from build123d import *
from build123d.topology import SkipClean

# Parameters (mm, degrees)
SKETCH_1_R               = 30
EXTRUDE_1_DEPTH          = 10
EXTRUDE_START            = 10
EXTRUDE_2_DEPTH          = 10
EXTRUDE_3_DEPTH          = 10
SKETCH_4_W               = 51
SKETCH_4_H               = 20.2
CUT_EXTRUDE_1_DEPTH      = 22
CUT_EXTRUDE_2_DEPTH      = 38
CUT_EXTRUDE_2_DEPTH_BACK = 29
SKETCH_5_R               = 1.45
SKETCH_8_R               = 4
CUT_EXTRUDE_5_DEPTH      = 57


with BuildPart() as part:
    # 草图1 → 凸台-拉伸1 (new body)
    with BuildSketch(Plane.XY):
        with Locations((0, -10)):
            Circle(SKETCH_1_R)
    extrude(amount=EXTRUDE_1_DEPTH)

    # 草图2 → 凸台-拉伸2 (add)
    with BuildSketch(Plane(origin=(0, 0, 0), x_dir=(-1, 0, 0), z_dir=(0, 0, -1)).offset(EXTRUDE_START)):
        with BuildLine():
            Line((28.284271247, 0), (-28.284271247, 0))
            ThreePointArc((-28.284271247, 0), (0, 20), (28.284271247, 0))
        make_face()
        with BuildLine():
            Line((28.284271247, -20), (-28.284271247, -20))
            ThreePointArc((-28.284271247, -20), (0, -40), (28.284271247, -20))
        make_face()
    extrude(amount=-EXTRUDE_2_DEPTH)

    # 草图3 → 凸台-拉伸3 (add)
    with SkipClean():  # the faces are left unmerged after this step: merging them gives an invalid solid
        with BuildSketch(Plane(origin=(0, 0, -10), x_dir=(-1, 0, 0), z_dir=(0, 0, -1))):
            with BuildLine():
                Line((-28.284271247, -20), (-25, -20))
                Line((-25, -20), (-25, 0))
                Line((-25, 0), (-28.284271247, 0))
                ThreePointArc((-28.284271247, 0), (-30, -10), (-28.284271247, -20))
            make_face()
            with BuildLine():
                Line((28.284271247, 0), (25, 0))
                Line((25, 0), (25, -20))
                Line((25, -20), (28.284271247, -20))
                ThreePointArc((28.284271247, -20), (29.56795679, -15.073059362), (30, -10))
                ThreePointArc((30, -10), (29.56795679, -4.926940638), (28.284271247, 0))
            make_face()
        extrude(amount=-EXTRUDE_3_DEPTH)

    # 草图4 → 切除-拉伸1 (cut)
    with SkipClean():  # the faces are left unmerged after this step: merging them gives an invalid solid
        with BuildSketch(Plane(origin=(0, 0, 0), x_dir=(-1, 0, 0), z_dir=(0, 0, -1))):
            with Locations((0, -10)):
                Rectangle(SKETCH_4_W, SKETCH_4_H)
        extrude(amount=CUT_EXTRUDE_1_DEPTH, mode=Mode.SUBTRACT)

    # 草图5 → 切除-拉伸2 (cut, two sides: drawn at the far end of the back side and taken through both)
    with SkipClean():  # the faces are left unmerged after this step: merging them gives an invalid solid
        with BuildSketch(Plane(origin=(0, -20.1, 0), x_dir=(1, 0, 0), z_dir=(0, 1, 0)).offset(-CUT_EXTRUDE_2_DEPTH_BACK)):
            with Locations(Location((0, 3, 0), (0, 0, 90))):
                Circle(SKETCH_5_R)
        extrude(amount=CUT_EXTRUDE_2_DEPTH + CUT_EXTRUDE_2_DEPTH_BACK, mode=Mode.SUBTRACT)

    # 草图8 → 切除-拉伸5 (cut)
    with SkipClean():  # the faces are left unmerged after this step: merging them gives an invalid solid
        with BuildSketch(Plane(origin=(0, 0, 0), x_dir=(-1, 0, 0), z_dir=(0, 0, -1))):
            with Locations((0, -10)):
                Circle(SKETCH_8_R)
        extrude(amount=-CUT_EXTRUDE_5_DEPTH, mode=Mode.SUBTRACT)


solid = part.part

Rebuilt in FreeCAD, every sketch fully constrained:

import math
import FreeCAD as App
import Part
import Sketcher

V = App.Vector
Q = App.Units.Quantity

doc = App.newDocument("Part")
body = doc.addObject("PartDesign::Body", "Body")

# Sketch on XY plane
sketch1 = body.newObject("Sketcher::SketchObject", "Sketch")
sketch1.AttachmentSupport = (doc.getObject("XY_Plane"), [""])
sketch1.MapMode = "FlatFace"
sketch1.addGeometry(Part.Circle(V(0, -10, 0), V(0, 0, 1), 30), False)
sketch1.addConstraint(Sketcher.Constraint("PointOnObject", 0, 3, -2))
sketch1.addConstraint(Sketcher.Constraint("Diameter", 0, Q("60 mm")))
sketch1.addConstraint(Sketcher.Constraint("DistanceY", 0, 3, -1, 1, Q("10 mm")))
pad1 = body.newObject("PartDesign::Pad", "Pad")
pad1.Profile = sketch1
pad1.Length = 10

# Sketch on XY plane
sketch2 = body.newObject("Sketcher::SketchObject", "Sketch001")
sketch2.AttachmentSupport = (doc.getObject("XY_Plane"), [""])
sketch2.MapMode = "FlatFace"
sketch2.AttachmentOffset = App.Placement(V(0, 0, -10), App.Rotation())
sketch2.addGeometry(Part.LineSegment(V(28, 0, 0), V(-28, 0, 0)), False)
sketch2.addGeometry(Part.ArcOfCircle(Part.Circle(V(0, -10, 0), V(0, 0, 1), 30), math.radians(19), math.radians(161)), False)
sketch2.addGeometry(Part.LineSegment(V(-28, -20, 0), V(28, -20, 0)), False)
sketch2.addGeometry(Part.ArcOfCircle(Part.Circle(V(0, -10, 0), V(0, 0, 1), 30), math.radians(-161), math.radians(-19)), False)
sketch2.addConstraint(Sketcher.Constraint("Coincident", 0, 1, 1, 1))
sketch2.addConstraint(Sketcher.Constraint("Coincident", 1, 2, 0, 2))
sketch2.addConstraint(Sketcher.Constraint("Coincident", 2, 1, 3, 1))
sketch2.addConstraint(Sketcher.Constraint("Coincident", 3, 2, 2, 2))
sketch2.addConstraint(Sketcher.Constraint("Horizontal", 0))
sketch2.addConstraint(Sketcher.Constraint("Horizontal", 2))
sketch2.addConstraint(Sketcher.Constraint("Coincident", 3, 3, 1, 3))
sketch2.addConstraint(Sketcher.Constraint("Equal", 1, 3))
sketch2.addConstraint(Sketcher.Constraint("Symmetric", 0, 1, 1, 2, -1, 1))
sketch2.addConstraint(Sketcher.Constraint("Vertical", 1, 2, 2, 1))
sketch2.addConstraint(Sketcher.Constraint("Radius", 1, Q("30 mm")))
sketch2.addConstraint(Sketcher.Constraint("DistanceY", 1, 3, -1, 1, Q("10 mm")))
pad2 = body.newObject("PartDesign::Pad", "Pad001")
pad2.Profile = sketch2
pad2.Length = 10

# Sketch on XY plane
sketch3 = body.newObject("Sketcher::SketchObject", "Sketch002")
sketch3.AttachmentSupport = (doc.getObject("XY_Plane"), [""])
sketch3.MapMode = "FlatFace"
sketch3.AttachmentOffset = App.Placement(V(0, 0, -10), App.Rotation())
sketch3.addGeometry(Part.LineSegment(V(28.3, -20, 0), V(25, -20, 0)), False)
sketch3.addGeometry(Part.LineSegment(V(25, -20, 0), V(25, 0, 0)), False)
sketch3.addGeometry(Part.LineSegment(V(25, 0, 0), V(28.3, 0, 0)), False)
sketch3.addGeometry(Part.ArcOfCircle(Part.Circle(V(0, -10, 0), V(0, 0, 1), 30), math.radians(-19), math.radians(19)), False)
sketch3.addGeometry(Part.LineSegment(V(-28.3, 0, 0), V(-25, 0, 0)), False)
sketch3.addGeometry(Part.LineSegment(V(-25, 0, 0), V(-25, -20, 0)), False)
sketch3.addGeometry(Part.LineSegment(V(-25, -20, 0), V(-28.3, -20, 0)), False)
sketch3.addGeometry(Part.ArcOfCircle(Part.Circle(V(0, -10, 0), V(0, 0, 1), 30), math.radians(180), math.radians(199.47)), False)
sketch3.addGeometry(Part.ArcOfCircle(Part.Circle(V(0, -10, 0), V(0, 0, 1), 30), math.radians(160.53), math.radians(180)), False)
sketch3.addConstraint(Sketcher.Constraint("Coincident", 0, 2, 1, 1))
sketch3.addConstraint(Sketcher.Constraint("Coincident", 1, 2, 2, 1))
sketch3.addConstraint(Sketcher.Constraint("Coincident", 2, 2, 3, 2))
sketch3.addConstraint(Sketcher.Constraint("Coincident", 3, 1, 0, 1))
sketch3.addConstraint(Sketcher.Constraint("Coincident", 4, 2, 5, 1))
sketch3.addConstraint(Sketcher.Constraint("Coincident", 5, 2, 6, 1))
sketch3.addConstraint(Sketcher.Constraint("Coincident", 6, 2, 7, 2))
sketch3.addConstraint(Sketcher.Constraint("Tangent", 7, 1, 8, 2))
sketch3.addConstraint(Sketcher.Constraint("Coincident", 8, 1, 4, 1))
sketch3.addConstraint(Sketcher.Constraint("Horizontal", 0))
sketch3.addConstraint(Sketcher.Constraint("Vertical", 1))
sketch3.addConstraint(Sketcher.Constraint("Horizontal", 2))
sketch3.addConstraint(Sketcher.Constraint("Horizontal", 4))
sketch3.addConstraint(Sketcher.Constraint("Vertical", 5))
sketch3.addConstraint(Sketcher.Constraint("Horizontal", 6))
sketch3.addConstraint(Sketcher.Constraint("Coincident", 7, 3, 3, 3))
sketch3.addConstraint(Sketcher.Constraint("Equal", 3, 7))
sketch3.addConstraint(Sketcher.Constraint("Equal", 7, 8))
sketch3.addConstraint(Sketcher.Constraint("Symmetric", 1, 2, 4, 2, -1, 1))
sketch3.addConstraint(Sketcher.Constraint("Symmetric", 3, 1, 6, 2, -2))
sketch3.addConstraint(Sketcher.Constraint("PointOnObject", 1, 2, -1))
sketch3.addConstraint(Sketcher.Constraint("Horizontal", 8, 3, 7, 1))
sketch3.addConstraint(Sketcher.Constraint("Vertical", 2, 2, 3, 1))
sketch3.addConstraint(Sketcher.Constraint("Radius", 3, Q("30 mm")))
sketch3.addConstraint(Sketcher.Constraint("DistanceY", 1, 1, 1, 2, Q("20 mm")))
sketch3.addConstraint(Sketcher.Constraint("DistanceX", -1, 1, 0, 2, Q("25 mm")))
pad3 = body.newObject("PartDesign::Pad", "Pad002")
pad3.Profile = sketch3
pad3.Length = 10

# Sketch on XY plane
sketch4 = body.newObject("Sketcher::SketchObject", "Sketch003")
sketch4.AttachmentSupport = (doc.getObject("XY_Plane"), [""])
sketch4.MapMode = "FlatFace"
sketch4.addGeometry(Part.LineSegment(V(26, 0, 0), V(26, -20, 0)), False)
sketch4.addGeometry(Part.LineSegment(V(26, -20, 0), V(-26, -20, 0)), False)
sketch4.addGeometry(Part.LineSegment(V(-26, -20, 0), V(-26, 0, 0)), False)
sketch4.addGeometry(Part.LineSegment(V(-26, 0, 0), V(26, 0, 0)), False)
sketch4.addConstraint(Sketcher.Constraint("Coincident", 0, 2, 1, 1))
sketch4.addConstraint(Sketcher.Constraint("Coincident", 1, 2, 2, 1))
sketch4.addConstraint(Sketcher.Constraint("Coincident", 2, 2, 3, 1))
sketch4.addConstraint(Sketcher.Constraint("Coincident", 3, 2, 0, 1))
sketch4.addConstraint(Sketcher.Constraint("Vertical", 0))
sketch4.addConstraint(Sketcher.Constraint("Horizontal", 1))
sketch4.addConstraint(Sketcher.Constraint("Vertical", 2))
sketch4.addConstraint(Sketcher.Constraint("Horizontal", 3))
sketch4.addConstraint(Sketcher.Constraint("DistanceX", 1, 2, 1, 1, Q("51 mm")))
sketch4.addConstraint(Sketcher.Constraint("DistanceY", 0, 2, 0, 1, Q("20.2 mm")))
sketch4.addConstraint(Sketcher.Constraint("DistanceX", -1, 1, 0, 2, Q("25.5 mm")))
sketch4.addConstraint(Sketcher.Constraint("DistanceY", 0, 2, -1, 1, Q("20.1 mm")))
pocket1 = body.newObject("PartDesign::Pocket", "Pocket")
pocket1.Profile = sketch4
pocket1.Length = 22

# Sketch on XZ plane
sketch5 = body.newObject("Sketcher::SketchObject", "Sketch004")
sketch5.AttachmentSupport = (doc.getObject("XZ_Plane"), [""])
sketch5.MapMode = "FlatFace"
sketch5.AttachmentOffset = App.Placement(V(0, 0, 20.1), App.Rotation())
sketch5.addGeometry(Part.Circle(V(0, -3, 0), V(0, 0, 1), 1.4), False)
sketch5.addConstraint(Sketcher.Constraint("PointOnObject", 0, 3, -2))
sketch5.addConstraint(Sketcher.Constraint("Diameter", 0, Q("2.9 mm")))
sketch5.addConstraint(Sketcher.Constraint("DistanceY", 0, 3, -1, 1, Q("3 mm")))
pocket2 = body.newObject("PartDesign::Pocket", "Pocket001")
pocket2.Profile = sketch5
pocket2.Type = "TwoLengths"
pocket2.Length = 38
pocket2.Length2 = 29

# Sketch on XY plane
sketch6 = body.newObject("Sketcher::SketchObject", "Sketch005")
sketch6.AttachmentSupport = (doc.getObject("XY_Plane"), [""])
sketch6.MapMode = "FlatFace"
sketch6.addGeometry(Part.Circle(V(0, -10, 0), V(0, 0, 1), 4), False)
sketch6.addConstraint(Sketcher.Constraint("PointOnObject", 0, 3, -2))
sketch6.addConstraint(Sketcher.Constraint("Diameter", 0, Q("8 mm")))
sketch6.addConstraint(Sketcher.Constraint("DistanceY", 0, 3, -1, 1, Q("10 mm")))
pocket3 = body.newObject("PartDesign::Pocket", "Pocket002")
pocket3.Profile = sketch6
pocket3.Length = 57
pocket3.Reversed = True

doc.recompute()
